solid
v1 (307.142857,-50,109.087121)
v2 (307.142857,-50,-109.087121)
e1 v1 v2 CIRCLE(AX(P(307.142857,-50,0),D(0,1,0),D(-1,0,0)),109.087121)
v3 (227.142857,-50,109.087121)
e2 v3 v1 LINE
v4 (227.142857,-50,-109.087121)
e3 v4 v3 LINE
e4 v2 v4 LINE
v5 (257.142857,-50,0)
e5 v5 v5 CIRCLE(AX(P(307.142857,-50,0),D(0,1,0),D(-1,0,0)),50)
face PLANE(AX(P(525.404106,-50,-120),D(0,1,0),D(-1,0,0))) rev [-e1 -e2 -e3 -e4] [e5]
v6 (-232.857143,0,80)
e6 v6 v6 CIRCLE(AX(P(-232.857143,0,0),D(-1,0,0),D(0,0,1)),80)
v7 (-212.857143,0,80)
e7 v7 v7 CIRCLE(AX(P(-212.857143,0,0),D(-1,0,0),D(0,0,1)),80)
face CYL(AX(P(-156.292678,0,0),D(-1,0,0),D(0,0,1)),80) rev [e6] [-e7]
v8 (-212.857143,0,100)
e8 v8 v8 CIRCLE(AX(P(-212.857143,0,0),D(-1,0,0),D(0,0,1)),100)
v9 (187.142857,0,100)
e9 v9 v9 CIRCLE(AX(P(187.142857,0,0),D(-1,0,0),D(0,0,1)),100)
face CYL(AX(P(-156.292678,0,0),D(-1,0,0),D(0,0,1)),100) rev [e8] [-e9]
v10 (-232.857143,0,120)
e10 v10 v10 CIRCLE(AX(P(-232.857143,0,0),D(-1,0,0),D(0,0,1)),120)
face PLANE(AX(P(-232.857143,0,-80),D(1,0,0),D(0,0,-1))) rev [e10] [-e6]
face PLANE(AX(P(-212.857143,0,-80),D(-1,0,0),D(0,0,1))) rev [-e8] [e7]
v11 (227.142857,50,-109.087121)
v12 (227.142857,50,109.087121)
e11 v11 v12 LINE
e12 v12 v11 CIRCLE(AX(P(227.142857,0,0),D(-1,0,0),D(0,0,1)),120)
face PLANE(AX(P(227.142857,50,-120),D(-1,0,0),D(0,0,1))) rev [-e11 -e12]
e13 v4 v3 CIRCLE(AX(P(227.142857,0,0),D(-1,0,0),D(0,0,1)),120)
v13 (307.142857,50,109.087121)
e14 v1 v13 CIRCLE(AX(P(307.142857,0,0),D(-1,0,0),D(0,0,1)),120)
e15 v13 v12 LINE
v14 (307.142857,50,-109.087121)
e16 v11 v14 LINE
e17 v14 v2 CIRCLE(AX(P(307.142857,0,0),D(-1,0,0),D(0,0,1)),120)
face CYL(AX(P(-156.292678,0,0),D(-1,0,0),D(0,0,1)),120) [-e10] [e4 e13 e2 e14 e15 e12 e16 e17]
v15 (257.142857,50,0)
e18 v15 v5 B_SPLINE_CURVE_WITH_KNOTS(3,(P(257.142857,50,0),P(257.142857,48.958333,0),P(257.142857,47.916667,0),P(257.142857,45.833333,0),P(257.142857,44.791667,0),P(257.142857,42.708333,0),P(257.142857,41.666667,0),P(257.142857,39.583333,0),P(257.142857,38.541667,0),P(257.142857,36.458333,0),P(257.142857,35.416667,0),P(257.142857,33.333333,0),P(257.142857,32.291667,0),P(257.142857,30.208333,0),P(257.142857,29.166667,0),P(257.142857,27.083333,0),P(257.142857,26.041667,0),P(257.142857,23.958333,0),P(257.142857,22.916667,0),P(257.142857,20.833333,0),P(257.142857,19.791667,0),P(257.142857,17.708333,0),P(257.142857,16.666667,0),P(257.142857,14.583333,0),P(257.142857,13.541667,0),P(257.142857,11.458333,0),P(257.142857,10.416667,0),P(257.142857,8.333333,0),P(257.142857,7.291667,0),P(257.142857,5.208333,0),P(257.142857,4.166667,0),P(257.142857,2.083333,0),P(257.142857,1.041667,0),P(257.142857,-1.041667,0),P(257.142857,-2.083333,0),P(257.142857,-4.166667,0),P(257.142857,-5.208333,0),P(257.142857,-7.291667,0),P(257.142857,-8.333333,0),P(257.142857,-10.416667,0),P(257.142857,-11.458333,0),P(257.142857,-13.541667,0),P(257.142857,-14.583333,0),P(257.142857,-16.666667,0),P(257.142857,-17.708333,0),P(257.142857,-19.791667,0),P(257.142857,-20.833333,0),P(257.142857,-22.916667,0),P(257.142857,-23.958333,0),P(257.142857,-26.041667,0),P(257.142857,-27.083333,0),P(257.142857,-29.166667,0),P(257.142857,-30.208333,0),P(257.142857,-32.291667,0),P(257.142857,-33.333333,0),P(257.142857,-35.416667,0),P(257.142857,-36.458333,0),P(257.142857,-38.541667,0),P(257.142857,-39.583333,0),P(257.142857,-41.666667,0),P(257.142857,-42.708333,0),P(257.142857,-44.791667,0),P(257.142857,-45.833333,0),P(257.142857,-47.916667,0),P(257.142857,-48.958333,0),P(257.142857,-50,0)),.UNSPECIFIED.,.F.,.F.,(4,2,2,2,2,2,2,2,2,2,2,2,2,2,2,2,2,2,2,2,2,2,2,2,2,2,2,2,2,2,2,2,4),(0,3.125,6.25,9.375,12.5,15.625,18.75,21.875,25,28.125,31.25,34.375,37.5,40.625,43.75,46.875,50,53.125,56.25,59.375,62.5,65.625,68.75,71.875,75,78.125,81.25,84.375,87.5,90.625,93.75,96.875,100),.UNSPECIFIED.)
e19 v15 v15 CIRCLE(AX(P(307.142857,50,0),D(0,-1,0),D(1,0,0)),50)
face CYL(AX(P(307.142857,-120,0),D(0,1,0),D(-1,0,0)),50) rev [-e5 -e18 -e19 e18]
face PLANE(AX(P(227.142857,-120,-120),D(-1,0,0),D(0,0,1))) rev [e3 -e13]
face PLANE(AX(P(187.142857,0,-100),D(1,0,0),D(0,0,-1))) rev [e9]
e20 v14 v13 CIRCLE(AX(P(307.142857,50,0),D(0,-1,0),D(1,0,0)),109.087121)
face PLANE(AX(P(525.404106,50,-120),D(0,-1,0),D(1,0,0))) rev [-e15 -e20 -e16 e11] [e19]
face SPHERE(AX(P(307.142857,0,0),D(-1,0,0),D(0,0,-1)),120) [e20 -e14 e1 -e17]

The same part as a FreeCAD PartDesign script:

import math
import FreeCAD as App
import Part
import Sketcher
from FreeCAD import Vector

doc = App.newDocument("Part")
body = doc.addObject("PartDesign::Body", "Body")

sketch1 = body.newObject("Sketcher::SketchObject", "Sketch")
sketch1.AttachmentSupport = (doc.getObject("XZ_Plane"), [""])
sketch1.MapMode = "FlatFace"
sketch1.addGeometry(Part.LineSegment(Vector(-233, -80, 0), Vector(-213, -80, 0)), False)
sketch1.addGeometry(Part.LineSegment(Vector(-213, -80, 0), Vector(-213, -100, 0)), False)
sketch1.addGeometry(Part.LineSegment(Vector(-213, -100, 0), Vector(187, -100, 0)), False)
sketch1.addGeometry(Part.LineSegment(Vector(187, -100, 0), Vector(187, 0, 0)), False)
sketch1.addGeometry(Part.LineSegment(Vector(187, 0, 0), Vector(427, 0, 0)), False)
sketch1.addGeometry(Part.ArcOfCircle(Part.Circle(Vector(307, 0, 0), Vector(0, 0, 1), 120), math.radians(-90), math.radians(0)), False)
sketch1.addGeometry(Part.LineSegment(Vector(307, -120, 0), Vector(-233, -120, 0)), False)
sketch1.addGeometry(Part.LineSegment(Vector(-233, -120, 0), Vector(-233, -80, 0)), False)
sketch1.addConstraint(Sketcher.Constraint("Coincident", 0, 2, 1, 1))
sketch1.addConstraint(Sketcher.Constraint("Coincident", 1, 2, 2, 1))
sketch1.addConstraint(Sketcher.Constraint("Coincident", 2, 2, 3, 1))
sketch1.addConstraint(Sketcher.Constraint("Coincident", 3, 2, 4, 1))
sketch1.addConstraint(Sketcher.Constraint("Coincident", 4, 2, 5, 2))
sketch1.addConstraint(Sketcher.Constraint("Tangent", 5, 1, 6, 1))
sketch1.addConstraint(Sketcher.Constraint("Coincident", 6, 2, 7, 1))
sketch1.addConstraint(Sketcher.Constraint("Coincident", 7, 2, 0, 1))
sketch1.addConstraint(Sketcher.Constraint("Horizontal", 0))
sketch1.addConstraint(Sketcher.Constraint("Vertical", 1))
sketch1.addConstraint(Sketcher.Constraint("Horizontal", 2))
sketch1.addConstraint(Sketcher.Constraint("Vertical", 3))
sketch1.addConstraint(Sketcher.Constraint("Horizontal", 4))
sketch1.addConstraint(Sketcher.Constraint("Horizontal", 6))
sketch1.addConstraint(Sketcher.Constraint("Vertical", 7))
sketch1.addConstraint(Sketcher.Constraint("PointOnObject", 5, 3, -1))
sketch1.addConstraint(Sketcher.Constraint("PointOnObject", 3, 2, -1))
sketch1.addConstraint(Sketcher.Constraint("Equal", 0, 1))
sketch1.addConstraint(Sketcher.Constraint("Radius", 5, 120.0))
sketch1.addConstraint(Sketcher.Constraint("DistanceX", 0, 1, 0, 2, 20.0))
sketch1.addConstraint(Sketcher.Constraint("DistanceX", 2, 1, 2, 2, 400.0))
sketch1.addConstraint(Sketcher.Constraint("DistanceX", 4, 1, 4, 2, 240.0))
sketch1.addConstraint(Sketcher.Constraint("DistanceY", 3, 1, 3, 2, 100.0))
sketch1.addConstraint(Sketcher.Constraint("DistanceX", -1, 1, 5, 3, 307.142857))
revolution = body.newObject("PartDesign::Revolution", "Revolution")
revolution.Profile = sketch1
revolution.ReferenceAxis = (sketch1, ["H_Axis"])
revolution.Angle = 360

sketch2 = body.newObject("Sketcher::SketchObject", "Sketch001")
sketch2.AttachmentSupport = (doc.getObject("XY_Plane"), [""])
sketch2.MapMode = "FlatFace"
sketch2.addGeometry(Part.LineSegment(Vector(227, 50, 0), Vector(525, 50, 0)), False)
sketch2.addGeometry(Part.LineSegment(Vector(525, 50, 0), Vector(525, -50, 0)), False)
sketch2.addGeometry(Part.LineSegment(Vector(525, -50, 0), Vector(227, -50, 0)), False)
sketch2.addGeometry(Part.LineSegment(Vector(227, -50, 0), Vector(227, -120, 0)), False)
sketch2.addGeometry(Part.LineSegment(Vector(227, -120, 0), Vector(588, -120, 0)), False)
sketch2.addGeometry(Part.LineSegment(Vector(588, -120, 0), Vector(588, 120, 0)), False)
sketch2.addGeometry(Part.LineSegment(Vector(588, 120, 0), Vector(227, 120, 0)), False)
sketch2.addGeometry(Part.LineSegment(Vector(227, 120, 0), Vector(227, 50, 0)), False)
sketch2.addConstraint(Sketcher.Constraint("Coincident", 0, 2, 1, 1))
sketch2.addConstraint(Sketcher.Constraint("Coincident", 1, 2, 2, 1))
sketch2.addConstraint(Sketcher.Constraint("Coincident", 2, 2, 3, 1))
sketch2.addConstraint(Sketcher.Constraint("Coincident", 3, 2, 4, 1))
sketch2.addConstraint(Sketcher.Constraint("Coincident", 4, 2, 5, 1))
sketch2.addConstraint(Sketcher.Constraint("Coincident", 5, 2, 6, 1))
sketch2.addConstraint(Sketcher.Constraint("Coincident", 6, 2, 7, 1))
sketch2.addConstraint(Sketcher.Constraint("Coincident", 7, 2, 0, 1))
sketch2.addConstraint(Sketcher.Constraint("Horizontal", 0))
sketch2.addConstraint(Sketcher.Constraint("Vertical", 1))
sketch2.addConstraint(Sketcher.Constraint("Horizontal", 2))
sketch2.addConstraint(Sketcher.Constraint("Vertical", 3))
sketch2.addConstraint(Sketcher.Constraint("Horizontal", 4))
sketch2.addConstraint(Sketcher.Constraint("Vertical", 5))
sketch2.addConstraint(Sketcher.Constraint("Horizontal", 6))
sketch2.addConstraint(Sketcher.Constraint("Vertical", 7))
sketch2.addConstraint(Sketcher.Constraint("Symmetric", 3, 2, 6, 2, -1))
sketch2.addConstraint(Sketcher.Constraint("Equal", 3, 7))
sketch2.addConstraint(Sketcher.Constraint("DistanceY", 1, 2, 1, 1, 100.0))
sketch2.addConstraint(Sketcher.Constraint("DistanceY", 3, 2, 3, 1, 70.0))
sketch2.addConstraint(Sketcher.Constraint("DistanceX", 0, 1, 0, 2, 298.261249))
sketch2.addConstraint(Sketcher.Constraint("DistanceX", 4, 1, 4, 2, 360.805939))
sketch2.addConstraint(Sketcher.Constraint("DistanceX", -1, 1, 0, 2, 525.404106))
pocket1 = body.newObject("PartDesign::Pocket", "Pocket")
pocket1.Profile = sketch2
pocket1.Type = "ThroughAll"
pocket1.Midplane = True

sketch3 = body.newObject("Sketcher::SketchObject", "Sketch002")
sketch3.AttachmentSupport = (doc.getObject("XZ_Plane"), [""])
sketch3.MapMode = "FlatFace"
sketch3.AttachmentOffset = App.Placement(Vector(0, 0, -50), App.Rotation())
sketch3.addGeometry(Part.Circle(Vector(307, 0, 0), Vector(0, 0, 1), 50), False)
sketch3.addConstraint(Sketcher.Constraint("PointOnObject", 0, 3, -1))
sketch3.addConstraint(Sketcher.Constraint("Diameter", 0, 100.0))
sketch3.addConstraint(Sketcher.Constraint("DistanceX", -1, 1, 0, 3, 307.142857))
pocket2 = body.newObject("PartDesign::Pocket", "Pocket001")
pocket2.Profile = sketch3
pocket2.Type = "ThroughAll"
pocket2.Midplane = True

doc.recompute()
